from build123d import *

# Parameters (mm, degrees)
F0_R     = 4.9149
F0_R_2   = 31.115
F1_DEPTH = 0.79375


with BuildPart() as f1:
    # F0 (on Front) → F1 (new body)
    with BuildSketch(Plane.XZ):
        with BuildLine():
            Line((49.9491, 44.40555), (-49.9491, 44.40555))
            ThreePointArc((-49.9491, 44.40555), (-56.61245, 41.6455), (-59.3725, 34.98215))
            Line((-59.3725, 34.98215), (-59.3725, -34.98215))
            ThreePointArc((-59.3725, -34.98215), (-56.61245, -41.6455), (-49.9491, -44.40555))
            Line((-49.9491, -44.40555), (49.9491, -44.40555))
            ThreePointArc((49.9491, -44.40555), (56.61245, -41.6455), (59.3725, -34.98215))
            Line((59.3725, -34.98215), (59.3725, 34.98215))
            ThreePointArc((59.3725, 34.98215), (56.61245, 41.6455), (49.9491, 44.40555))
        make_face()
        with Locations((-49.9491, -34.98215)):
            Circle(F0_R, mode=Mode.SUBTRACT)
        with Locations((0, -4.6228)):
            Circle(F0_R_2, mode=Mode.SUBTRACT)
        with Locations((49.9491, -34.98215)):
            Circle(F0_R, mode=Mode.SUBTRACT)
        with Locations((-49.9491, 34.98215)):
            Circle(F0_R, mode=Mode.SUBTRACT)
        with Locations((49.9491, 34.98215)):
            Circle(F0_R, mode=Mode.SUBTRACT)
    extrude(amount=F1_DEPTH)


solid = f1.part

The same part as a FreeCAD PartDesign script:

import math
import FreeCAD as App
import Part
import Sketcher

V = App.Vector
Q = App.Units.Quantity

doc = App.newDocument("Part")
params = doc.addObject("Spreadsheet::Sheet", "Params")
for row, (alias, value) in enumerate([
    ("sketch1_diameter", "2.45 in"),
    ("sketch1_diameter2", "0.387 in"),
    ("sketch1_radius", "0.371 in"),
    ("sketch1_width", "3.933 in"),
    ("pad1_length", "0.03125 in"),
], start=1):
    params.set(f"A{row}", alias)
    params.set(f"B{row}", "=" + value)
    params.setAlias(f"B{row}", alias)

body = doc.addObject("PartDesign::Body", "Body")

# Sketch on XZ plane
sketch1 = body.newObject("Sketcher::SketchObject", "Sketch")
sketch1.AttachmentSupport = (doc.getObject("XZ_Plane"), [""])
sketch1.MapMode = "FlatFace"
sketch1.addGeometry([
    Part.LineSegment(V(49.9, 44.4, 0), V(-49.9, 44.4, 0)),  # 0
    Part.ArcOfCircle(Part.Circle(V(-49.9, 35, 0), V(0, 0, 1), 9.4), math.radians(90), math.radians(180)),  # 1
    Part.LineSegment(V(-59.4, 35, 0), V(-59.4, -35, 0)),  # 2
    Part.ArcOfCircle(Part.Circle(V(-49.9, -35, 0), V(0, 0, 1), 9.4), math.radians(-180), math.radians(-90)),  # 3
    Part.LineSegment(V(-49.9, -44.4, 0), V(49.9, -44.4, 0)),  # 4
    Part.ArcOfCircle(Part.Circle(V(49.9, -35, 0), V(0, 0, 1), 9.4), math.radians(-90), math.radians(0)),  # 5
    Part.LineSegment(V(59.4, -35, 0), V(59.4, 35, 0)),  # 6
    Part.ArcOfCircle(Part.Circle(V(49.9, 35, 0), V(0, 0, 1), 9.4), math.radians(0), math.radians(90)),  # 7
    Part.Circle(V(-49.9, -35, 0), V(0, 0, 1), 4.9),  # 8
    Part.Circle(V(0, -4.6, 0), V(0, 0, 1), 31.1),  # 9
    Part.Circle(V(49.9, -35, 0), V(0, 0, 1), 4.9),  # 10
    Part.Circle(V(-49.9, 35, 0), V(0, 0, 1), 4.9),  # 11
    Part.Circle(V(49.9, 35, 0), V(0, 0, 1), 4.9),  # 12
], False)
sketch1.addConstraint([
    Sketcher.Constraint("Tangent", 0, 2, 1, 1),
    Sketcher.Constraint("Tangent", 1, 2, 2, 1),
    Sketcher.Constraint("Tangent", 2, 2, 3, 1),
    Sketcher.Constraint("Tangent", 3, 2, 4, 1),
    Sketcher.Constraint("Tangent", 4, 2, 5, 1),
    Sketcher.Constraint("Tangent", 5, 2, 6, 1),
    Sketcher.Constraint("Tangent", 6, 2, 7, 1),
    Sketcher.Constraint("Tangent", 7, 2, 0, 1),
    Sketcher.Constraint("Horizontal", 0),
    Sketcher.Constraint("Vertical", 2),
    Sketcher.Constraint("Horizontal", 4),
    Sketcher.Constraint("Vertical", 6),
    Sketcher.Constraint("Coincident", 8, 3, 3, 3),
    Sketcher.Constraint("Coincident", 10, 3, 5, 3),
    Sketcher.Constraint("Coincident", 11, 3, 1, 3),
    Sketcher.Constraint("Coincident", 12, 3, 7, 3),
    Sketcher.Constraint("Equal", 1, 3),
    Sketcher.Constraint("Equal", 3, 5),
    Sketcher.Constraint("Equal", 5, 7),
    Sketcher.Constraint("Equal", 8, 10),
    Sketcher.Constraint("Equal", 10, 11),
    Sketcher.Constraint("Equal", 11, 12),
    Sketcher.Constraint("Symmetric", 1, 3, 5, 3, -1, 1),
    Sketcher.Constraint("PointOnObject", 9, 3, -2),
    Sketcher.Constraint("Diameter", 9, Q("2.45 in")),
    Sketcher.Constraint("Diameter", 8, Q("0.387 in")),
    Sketcher.Constraint("Radius", 1, Q("0.371 in")),
    Sketcher.Constraint("DistanceX", 0, 2, 0, 1, Q("3.933 in")),
    Sketcher.Constraint("DistanceY", 2, 2, 2, 1, Q("2.7545 in")),
    Sketcher.Constraint("DistanceY", 9, 3, -1, 1, Q("0.182 in")),
])
sketch1.setExpression("Constraints[24]", "Params.sketch1_diameter")
sketch1.setExpression("Constraints[25]", "Params.sketch1_diameter2")
sketch1.setExpression("Constraints[26]", "Params.sketch1_radius")
sketch1.setExpression("Constraints[27]", "Params.sketch1_width")
pad1 = body.newObject("PartDesign::Pad", "Pad")
pad1.Profile = sketch1
pad1.setExpression("Length", "Params.pad1_length")

doc.recompute()
